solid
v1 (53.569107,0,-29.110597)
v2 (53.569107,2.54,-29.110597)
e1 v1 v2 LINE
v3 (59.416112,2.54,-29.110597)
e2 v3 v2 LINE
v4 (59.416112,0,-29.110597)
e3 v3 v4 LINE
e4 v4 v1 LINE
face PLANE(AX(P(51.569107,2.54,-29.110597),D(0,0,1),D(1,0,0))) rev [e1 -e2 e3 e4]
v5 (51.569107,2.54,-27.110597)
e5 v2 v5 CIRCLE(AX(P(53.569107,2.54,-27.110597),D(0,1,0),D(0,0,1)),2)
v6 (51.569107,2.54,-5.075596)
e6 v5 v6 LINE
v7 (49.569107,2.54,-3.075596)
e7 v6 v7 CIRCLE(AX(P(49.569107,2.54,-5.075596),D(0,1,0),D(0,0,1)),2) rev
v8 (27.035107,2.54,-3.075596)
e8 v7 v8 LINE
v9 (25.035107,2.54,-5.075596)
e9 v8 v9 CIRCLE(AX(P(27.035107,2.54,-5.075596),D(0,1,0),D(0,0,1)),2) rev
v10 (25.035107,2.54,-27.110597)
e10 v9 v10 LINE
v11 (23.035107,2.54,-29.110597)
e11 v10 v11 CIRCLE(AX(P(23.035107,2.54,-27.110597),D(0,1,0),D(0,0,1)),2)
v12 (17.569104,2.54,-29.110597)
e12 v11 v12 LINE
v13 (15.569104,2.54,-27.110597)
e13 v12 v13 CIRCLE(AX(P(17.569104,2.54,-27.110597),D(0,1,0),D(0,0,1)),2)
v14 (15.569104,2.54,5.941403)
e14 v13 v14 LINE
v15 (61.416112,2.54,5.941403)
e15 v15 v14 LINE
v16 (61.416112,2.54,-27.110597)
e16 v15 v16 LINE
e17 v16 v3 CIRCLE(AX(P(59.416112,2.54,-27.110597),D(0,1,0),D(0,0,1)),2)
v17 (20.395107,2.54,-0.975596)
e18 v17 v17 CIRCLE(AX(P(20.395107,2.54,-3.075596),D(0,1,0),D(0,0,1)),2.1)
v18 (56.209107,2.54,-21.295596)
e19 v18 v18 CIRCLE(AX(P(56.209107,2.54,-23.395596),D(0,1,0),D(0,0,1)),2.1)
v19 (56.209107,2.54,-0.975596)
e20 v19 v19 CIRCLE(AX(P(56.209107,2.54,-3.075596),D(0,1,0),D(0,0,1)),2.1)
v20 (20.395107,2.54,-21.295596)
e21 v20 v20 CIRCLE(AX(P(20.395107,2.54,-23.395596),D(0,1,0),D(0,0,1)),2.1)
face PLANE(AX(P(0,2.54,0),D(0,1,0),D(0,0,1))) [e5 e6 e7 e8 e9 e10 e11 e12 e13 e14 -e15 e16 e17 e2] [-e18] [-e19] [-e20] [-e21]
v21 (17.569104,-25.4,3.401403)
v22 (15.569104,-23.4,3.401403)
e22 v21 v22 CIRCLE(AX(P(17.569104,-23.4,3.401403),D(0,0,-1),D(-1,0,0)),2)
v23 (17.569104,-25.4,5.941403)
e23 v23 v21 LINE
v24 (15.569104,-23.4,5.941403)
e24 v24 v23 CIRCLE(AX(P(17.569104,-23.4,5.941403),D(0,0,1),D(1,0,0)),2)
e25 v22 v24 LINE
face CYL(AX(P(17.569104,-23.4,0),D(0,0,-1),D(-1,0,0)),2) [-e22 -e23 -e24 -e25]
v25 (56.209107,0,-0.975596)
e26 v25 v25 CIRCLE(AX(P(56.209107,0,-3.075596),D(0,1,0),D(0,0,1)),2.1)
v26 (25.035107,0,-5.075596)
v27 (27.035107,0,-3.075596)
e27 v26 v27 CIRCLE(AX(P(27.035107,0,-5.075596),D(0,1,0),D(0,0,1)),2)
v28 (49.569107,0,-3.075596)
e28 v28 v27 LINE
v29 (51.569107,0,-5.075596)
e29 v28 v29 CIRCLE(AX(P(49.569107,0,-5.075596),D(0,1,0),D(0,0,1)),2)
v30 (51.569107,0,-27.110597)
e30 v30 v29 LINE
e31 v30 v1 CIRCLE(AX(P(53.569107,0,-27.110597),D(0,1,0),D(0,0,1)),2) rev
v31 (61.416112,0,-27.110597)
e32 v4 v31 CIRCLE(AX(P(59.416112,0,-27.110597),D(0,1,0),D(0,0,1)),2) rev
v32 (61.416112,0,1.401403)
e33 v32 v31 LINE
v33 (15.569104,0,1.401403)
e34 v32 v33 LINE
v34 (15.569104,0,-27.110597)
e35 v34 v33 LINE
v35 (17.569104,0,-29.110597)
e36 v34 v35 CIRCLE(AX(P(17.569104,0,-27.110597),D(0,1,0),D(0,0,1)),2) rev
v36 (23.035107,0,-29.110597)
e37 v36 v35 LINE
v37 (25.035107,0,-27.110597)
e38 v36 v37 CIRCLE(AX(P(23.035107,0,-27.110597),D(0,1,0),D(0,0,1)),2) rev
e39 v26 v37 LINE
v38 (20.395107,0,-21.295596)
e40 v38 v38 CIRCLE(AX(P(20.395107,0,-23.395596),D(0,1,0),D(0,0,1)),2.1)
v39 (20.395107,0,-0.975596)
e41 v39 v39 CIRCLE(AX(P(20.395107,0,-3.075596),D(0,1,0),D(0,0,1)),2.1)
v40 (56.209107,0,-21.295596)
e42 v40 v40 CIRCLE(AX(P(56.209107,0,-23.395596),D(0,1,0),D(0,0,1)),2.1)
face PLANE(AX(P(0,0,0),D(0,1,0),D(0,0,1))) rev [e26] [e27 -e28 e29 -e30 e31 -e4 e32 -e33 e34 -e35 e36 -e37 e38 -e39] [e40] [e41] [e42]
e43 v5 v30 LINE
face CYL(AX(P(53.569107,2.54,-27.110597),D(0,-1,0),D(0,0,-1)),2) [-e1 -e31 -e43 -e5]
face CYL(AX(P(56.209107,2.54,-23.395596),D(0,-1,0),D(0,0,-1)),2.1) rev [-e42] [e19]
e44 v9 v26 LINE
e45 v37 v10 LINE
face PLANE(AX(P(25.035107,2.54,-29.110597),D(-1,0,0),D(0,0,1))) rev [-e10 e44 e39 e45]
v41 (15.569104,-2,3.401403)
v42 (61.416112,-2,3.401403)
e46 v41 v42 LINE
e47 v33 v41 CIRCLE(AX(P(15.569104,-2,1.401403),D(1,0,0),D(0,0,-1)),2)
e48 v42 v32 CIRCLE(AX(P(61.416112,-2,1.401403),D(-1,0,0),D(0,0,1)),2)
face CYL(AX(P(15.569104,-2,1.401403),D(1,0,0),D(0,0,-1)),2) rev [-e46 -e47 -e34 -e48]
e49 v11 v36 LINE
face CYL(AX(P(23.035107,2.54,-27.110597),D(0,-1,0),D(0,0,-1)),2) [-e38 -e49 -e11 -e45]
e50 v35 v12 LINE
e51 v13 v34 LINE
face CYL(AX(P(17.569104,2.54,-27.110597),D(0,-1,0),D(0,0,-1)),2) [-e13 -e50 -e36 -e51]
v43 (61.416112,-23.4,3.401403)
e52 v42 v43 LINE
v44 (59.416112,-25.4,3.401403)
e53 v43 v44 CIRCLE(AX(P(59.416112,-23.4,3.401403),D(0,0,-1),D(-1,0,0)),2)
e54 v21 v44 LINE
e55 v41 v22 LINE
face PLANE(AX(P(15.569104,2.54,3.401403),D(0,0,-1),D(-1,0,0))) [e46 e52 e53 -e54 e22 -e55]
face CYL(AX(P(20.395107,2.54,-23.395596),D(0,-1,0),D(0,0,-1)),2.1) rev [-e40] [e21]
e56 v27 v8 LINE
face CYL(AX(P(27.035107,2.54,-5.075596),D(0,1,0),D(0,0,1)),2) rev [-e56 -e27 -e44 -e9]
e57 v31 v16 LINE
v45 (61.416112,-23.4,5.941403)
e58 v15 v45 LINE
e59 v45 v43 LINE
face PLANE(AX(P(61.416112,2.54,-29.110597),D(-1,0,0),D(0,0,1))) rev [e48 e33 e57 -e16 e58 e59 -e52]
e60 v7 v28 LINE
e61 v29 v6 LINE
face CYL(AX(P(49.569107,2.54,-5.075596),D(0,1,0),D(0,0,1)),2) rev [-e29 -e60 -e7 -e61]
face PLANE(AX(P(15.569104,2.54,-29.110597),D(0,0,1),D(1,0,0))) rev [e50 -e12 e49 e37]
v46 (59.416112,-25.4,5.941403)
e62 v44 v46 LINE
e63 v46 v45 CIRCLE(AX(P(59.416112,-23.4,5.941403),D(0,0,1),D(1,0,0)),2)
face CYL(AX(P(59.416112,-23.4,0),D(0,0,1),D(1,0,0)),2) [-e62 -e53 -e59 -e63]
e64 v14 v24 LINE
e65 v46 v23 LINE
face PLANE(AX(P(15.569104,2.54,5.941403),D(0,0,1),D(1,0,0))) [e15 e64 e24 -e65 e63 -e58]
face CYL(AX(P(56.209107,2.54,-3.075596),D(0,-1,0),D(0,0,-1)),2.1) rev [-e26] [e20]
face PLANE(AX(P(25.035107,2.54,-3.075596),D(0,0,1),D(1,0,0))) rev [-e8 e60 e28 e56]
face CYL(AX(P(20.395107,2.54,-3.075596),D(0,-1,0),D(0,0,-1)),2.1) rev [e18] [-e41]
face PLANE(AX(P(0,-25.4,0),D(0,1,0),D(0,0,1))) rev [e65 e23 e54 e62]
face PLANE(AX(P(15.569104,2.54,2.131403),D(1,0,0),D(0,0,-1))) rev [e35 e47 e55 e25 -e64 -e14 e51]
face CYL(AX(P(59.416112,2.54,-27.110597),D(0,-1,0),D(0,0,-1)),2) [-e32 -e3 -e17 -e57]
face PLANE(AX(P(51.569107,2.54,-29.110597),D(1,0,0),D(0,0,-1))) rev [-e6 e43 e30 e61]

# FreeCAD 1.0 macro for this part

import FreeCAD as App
import Part
import Sketcher

V = App.Vector
Q = App.Units.Quantity


def edges_at(feature, points):
    """Names of the edges that pass closest to the given points."""
    edges = feature.Shape.Edges
    near = lambda p: min(range(len(edges)), key=lambda i: edges[i].distToShape(Part.Vertex(*p))[0])
    return sorted({f"Edge{near(p) + 1}" for p in points})

doc = App.newDocument("Part")
body = doc.addObject("PartDesign::Body", "Body")

# Sketch on XZ plane
sketch1 = body.newObject("Sketcher::SketchObject", "Sketch")
sketch1.AttachmentSupport = (doc.getObject("XZ_Plane"), [""])
sketch1.MapMode = "FlatFace"
sketch1.addGeometry([
    Part.LineSegment(V(25.035107, -29.110597, 0), V(15.569104, -29.110597, 0)),  # 0
    Part.LineSegment(V(15.569104, -29.110597, 0), V(15.569104, 3.401403, 0)),  # 1
    Part.LineSegment(V(15.569104, 3.401403, 0), V(61.416112, 3.401403, 0)),  # 2
    Part.LineSegment(V(61.416112, 3.401403, 0), V(61.416112, -29.110597, 0)),  # 3
    Part.LineSegment(V(61.416112, -29.110597, 0), V(51.569107, -29.110597, 0)),  # 4
    Part.LineSegment(V(51.569107, -29.110597, 0), V(51.569107, -3.075596, 0)),  # 5
    Part.LineSegment(V(51.569107, -3.075596, 0), V(25.035107, -3.075596, 0)),  # 6
    Part.LineSegment(V(25.035107, -3.075596, 0), V(25.035107, -29.110597, 0)),  # 7
    Part.Circle(V(56.209107, -3.075596, 0), V(0, 0, 1), 2.1),  # 8
    Part.Circle(V(20.395107, -3.075596, 0), V(0, 0, 1), 2.1),  # 9
    Part.Circle(V(56.209107, -23.395596, 0), V(0, 0, 1), 2.1),  # 10
    Part.Circle(V(20.395107, -23.395596, 0), V(0, 0, 1), 2.1),  # 11
], False)
sketch1.addConstraint([
    Sketcher.Constraint("Coincident", 0, 2, 1, 1),
    Sketcher.Constraint("Coincident", 1, 2, 2, 1),
    Sketcher.Constraint("Coincident", 2, 2, 3, 1),
    Sketcher.Constraint("Coincident", 3, 2, 4, 1),
    Sketcher.Constraint("Coincident", 4, 2, 5, 1),
    Sketcher.Constraint("Coincident", 5, 2, 6, 1),
    Sketcher.Constraint("Coincident", 6, 2, 7, 1),
    Sketcher.Constraint("Coincident", 7, 2, 0, 1),
    Sketcher.Constraint("Horizontal", 0),
    Sketcher.Constraint("Vertical", 1),
    Sketcher.Constraint("Horizontal", 2),
    Sketcher.Constraint("Vertical", 3),
    Sketcher.Constraint("Horizontal", 4),
    Sketcher.Constraint("Vertical", 5),
    Sketcher.Constraint("Horizontal", 6),
    Sketcher.Constraint("Vertical", 7),
    Sketcher.Constraint("Equal", 8, 9),
    Sketcher.Constraint("Equal", 9, 10),
    Sketcher.Constraint("Equal", 10, 11),
    Sketcher.Constraint("Horizontal", 8, 3, 9, 3),
    Sketcher.Constraint("Horizontal", 10, 3, 11, 3),
    Sketcher.Constraint("Horizontal", 0, 2, 3, 2),
    Sketcher.Constraint("Horizontal", 9, 3, 5, 2),
    Sketcher.Constraint("Vertical", 8, 3, 10, 3),
    Sketcher.Constraint("Vertical", 9, 3, 11, 3),
    Sketcher.Constraint("DistanceY", 1, 1, 1, 2, Q("1.28 in")),
    Sketcher.Constraint("DistanceY", 10, 3, 8, 3, Q("0.8 in")),
    Sketcher.Constraint("DistanceX", 0, 2, 10, 3, Q("1.6000001 in")),
    Sketcher.Constraint("Diameter", 8, Q("4.2 mm")),
    Sketcher.Constraint("DistanceY", 5, 1, 5, 2, Q("1.025 in")),
    Sketcher.Constraint("DistanceX", 9, 3, 8, 3, Q("1.41 in")),
    Sketcher.Constraint("DistanceX", 8, 3, 2, 2, Q("0.2050002 in")),
    Sketcher.Constraint("DistanceX", 6, 2, 6, 1, Q("26.534 mm")),
    Sketcher.Constraint("DistanceX", 4, 2, 10, 3, Q("4.64 mm")),
    Sketcher.Constraint("DistanceX", -1, 1, 2, 2, Q("61.416112 mm")),
    Sketcher.Constraint("DistanceY", 8, 3, -1, 1, Q("3.075596 mm")),
])
pad1 = body.newObject("PartDesign::Pad", "Pad")
pad1.Profile = sketch1
pad1.Length = Q("0.1 in")
pad1.Reversed = True

# Sketch on XZ plane
sketch2 = body.newObject("Sketcher::SketchObject", "Sketch001")
sketch2.AttachmentSupport = (doc.getObject("XZ_Plane"), [""])
sketch2.MapMode = "FlatFace"
sketch2.addGeometry([
    Part.LineSegment(V(15.569104, 5.941403, 0), V(15.569104, 3.401403, 0)),
    Part.LineSegment(V(15.569104, 3.401403, 0), V(61.416112, 3.401403, 0)),
    Part.LineSegment(V(61.416112, 3.401403, 0), V(61.416112, 5.941403, 0)),
    Part.LineSegment(V(61.416112, 5.941403, 0), V(15.569104, 5.941403, 0)),
], False)
sketch2.addConstraint([
    Sketcher.Constraint("Coincident", 0, 2, 1, 1),
    Sketcher.Constraint("Coincident", 1, 2, 2, 1),
    Sketcher.Constraint("Coincident", 2, 2, 3, 1),
    Sketcher.Constraint("Coincident", 3, 2, 0, 1),
    Sketcher.Constraint("Vertical", 0),
    Sketcher.Constraint("Horizontal", 1),
    Sketcher.Constraint("Vertical", 2),
    Sketcher.Constraint("Horizontal", 3),
    Sketcher.Constraint("DistanceY", 0, 2, 0, 1, Q("0.1 in")),
    Sketcher.Constraint("DistanceX", 1, 1, 1, 2, Q("45.847008 mm")),
    Sketcher.Constraint("DistanceX", -1, 1, 1, 2, Q("61.416112 mm")),
    Sketcher.Constraint("DistanceY", -1, 1, 0, 2, Q("3.401403 mm")),
])
pad2 = body.newObject("PartDesign::Pad", "Pad001")
pad2.Profile = sketch2
pad2.Type = "TwoLengths"
pad2.Length = Q("1 in")
pad2.Length2 = Q("0.1 in")
doc.recompute()

fillet = body.newObject("PartDesign::Fillet", "Fillet")
fillet.Base = (pad2, edges_at(pad2, [
    (38.493, 0, 3.401),
    (15.569, 1.27, -29.111),
    (25.035, 1.27, -29.111),
    (25.035, 1.27, -3.076),
    (51.569, 1.27, -3.076),
    (51.569, 1.27, -29.111),
    (61.416, 1.27, -29.111),
    (15.569, -25.4, 4.671),
    (61.416, -25.4, 4.671),
]))
fillet.Radius = 2

doc.recompute()
